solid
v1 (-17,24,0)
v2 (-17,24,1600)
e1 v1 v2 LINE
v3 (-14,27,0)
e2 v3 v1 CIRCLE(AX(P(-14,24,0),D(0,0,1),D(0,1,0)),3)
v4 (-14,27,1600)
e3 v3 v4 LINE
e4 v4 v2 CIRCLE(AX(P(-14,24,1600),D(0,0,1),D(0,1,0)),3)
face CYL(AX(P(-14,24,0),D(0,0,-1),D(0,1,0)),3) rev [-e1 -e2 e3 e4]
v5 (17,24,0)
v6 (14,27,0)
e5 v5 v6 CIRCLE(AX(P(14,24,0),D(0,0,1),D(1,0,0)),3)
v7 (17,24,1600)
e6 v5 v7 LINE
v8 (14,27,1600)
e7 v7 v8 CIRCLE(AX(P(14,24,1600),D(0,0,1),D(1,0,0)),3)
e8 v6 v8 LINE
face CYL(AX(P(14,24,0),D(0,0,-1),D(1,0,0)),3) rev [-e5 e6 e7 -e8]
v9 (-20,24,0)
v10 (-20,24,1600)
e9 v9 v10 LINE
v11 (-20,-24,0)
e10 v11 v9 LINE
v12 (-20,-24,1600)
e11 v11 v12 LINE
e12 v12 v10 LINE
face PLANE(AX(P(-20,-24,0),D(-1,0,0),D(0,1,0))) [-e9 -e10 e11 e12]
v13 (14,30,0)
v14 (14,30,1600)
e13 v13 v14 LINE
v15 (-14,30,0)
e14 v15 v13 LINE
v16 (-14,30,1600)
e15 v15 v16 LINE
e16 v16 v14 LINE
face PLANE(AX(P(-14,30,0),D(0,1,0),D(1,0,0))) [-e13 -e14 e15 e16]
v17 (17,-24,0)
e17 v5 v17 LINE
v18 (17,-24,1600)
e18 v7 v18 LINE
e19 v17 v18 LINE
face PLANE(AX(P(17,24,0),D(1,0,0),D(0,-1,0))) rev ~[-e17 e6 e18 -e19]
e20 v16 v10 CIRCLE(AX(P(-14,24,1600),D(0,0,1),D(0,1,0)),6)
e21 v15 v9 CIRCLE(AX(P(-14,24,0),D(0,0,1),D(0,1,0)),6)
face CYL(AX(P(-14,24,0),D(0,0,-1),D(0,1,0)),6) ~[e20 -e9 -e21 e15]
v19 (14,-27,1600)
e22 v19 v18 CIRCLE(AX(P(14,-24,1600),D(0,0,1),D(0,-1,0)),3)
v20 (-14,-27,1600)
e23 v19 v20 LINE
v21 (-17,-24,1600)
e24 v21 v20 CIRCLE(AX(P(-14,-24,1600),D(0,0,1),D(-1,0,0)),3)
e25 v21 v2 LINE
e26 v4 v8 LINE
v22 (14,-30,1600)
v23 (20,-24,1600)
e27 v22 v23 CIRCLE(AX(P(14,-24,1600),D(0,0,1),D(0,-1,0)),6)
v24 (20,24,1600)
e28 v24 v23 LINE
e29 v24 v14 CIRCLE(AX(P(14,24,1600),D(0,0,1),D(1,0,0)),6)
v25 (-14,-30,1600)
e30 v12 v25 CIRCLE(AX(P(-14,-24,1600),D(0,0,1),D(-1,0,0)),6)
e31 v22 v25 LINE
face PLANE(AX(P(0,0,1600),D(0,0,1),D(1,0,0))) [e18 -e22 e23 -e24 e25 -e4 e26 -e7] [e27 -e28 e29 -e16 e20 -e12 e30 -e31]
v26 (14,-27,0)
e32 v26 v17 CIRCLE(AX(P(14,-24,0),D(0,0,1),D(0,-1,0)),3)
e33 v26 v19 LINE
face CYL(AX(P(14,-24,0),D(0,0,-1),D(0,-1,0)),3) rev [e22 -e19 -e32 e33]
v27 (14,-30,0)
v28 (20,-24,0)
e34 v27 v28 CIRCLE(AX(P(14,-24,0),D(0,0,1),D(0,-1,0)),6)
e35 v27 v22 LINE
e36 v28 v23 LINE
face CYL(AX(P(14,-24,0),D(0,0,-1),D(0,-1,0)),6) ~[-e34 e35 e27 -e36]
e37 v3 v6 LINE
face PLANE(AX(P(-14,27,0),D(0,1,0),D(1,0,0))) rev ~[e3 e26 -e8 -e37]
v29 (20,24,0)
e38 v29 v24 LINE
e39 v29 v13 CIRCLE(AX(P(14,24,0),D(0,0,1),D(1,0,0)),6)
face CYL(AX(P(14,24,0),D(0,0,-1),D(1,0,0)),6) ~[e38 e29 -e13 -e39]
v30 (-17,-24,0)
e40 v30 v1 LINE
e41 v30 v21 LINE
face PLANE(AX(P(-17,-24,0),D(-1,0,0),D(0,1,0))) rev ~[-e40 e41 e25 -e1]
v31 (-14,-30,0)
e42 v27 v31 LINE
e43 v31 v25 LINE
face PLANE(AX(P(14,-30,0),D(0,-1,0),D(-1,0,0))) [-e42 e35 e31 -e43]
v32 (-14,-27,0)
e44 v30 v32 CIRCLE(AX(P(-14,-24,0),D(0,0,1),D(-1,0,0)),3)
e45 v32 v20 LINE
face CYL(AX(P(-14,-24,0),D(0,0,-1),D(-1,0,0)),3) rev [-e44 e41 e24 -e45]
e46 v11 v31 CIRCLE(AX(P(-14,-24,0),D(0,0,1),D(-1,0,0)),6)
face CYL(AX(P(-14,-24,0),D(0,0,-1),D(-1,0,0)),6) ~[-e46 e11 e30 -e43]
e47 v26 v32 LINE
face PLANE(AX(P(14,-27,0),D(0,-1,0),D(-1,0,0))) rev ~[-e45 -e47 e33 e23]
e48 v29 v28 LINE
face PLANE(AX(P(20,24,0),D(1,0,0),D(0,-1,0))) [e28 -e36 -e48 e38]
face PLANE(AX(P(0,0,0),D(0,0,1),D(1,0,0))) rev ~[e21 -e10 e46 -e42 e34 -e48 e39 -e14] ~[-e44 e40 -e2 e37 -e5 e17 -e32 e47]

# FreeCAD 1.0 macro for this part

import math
import FreeCAD as App
import Part
import Sketcher
from FreeCAD import Vector
Q = App.Units.Quantity

doc = App.newDocument("Part")
body = doc.addObject("PartDesign::Body", "Body")

sketch1 = body.newObject("Sketcher::SketchObject", "Sketch")
sketch1.AttachmentSupport = (doc.getObject("XY_Plane"), [""])
sketch1.MapMode = "FlatFace"
sketch1.addGeometry(Part.LineSegment(Vector(-20, 24, 0), Vector(-20, -24, 0)), False)
sketch1.addGeometry(Part.ArcOfCircle(Part.Circle(Vector(-14, -24, 0), Vector(0, 0, 1), 6), math.radians(180), math.radians(270)), False)
sketch1.addGeometry(Part.LineSegment(Vector(-14, -30, 0), Vector(14, -30, 0)), False)
sketch1.addGeometry(Part.ArcOfCircle(Part.Circle(Vector(14, -24, 0), Vector(0, 0, 1), 6), math.radians(-90), math.radians(0)), False)
sketch1.addGeometry(Part.LineSegment(Vector(20, -24, 0), Vector(20, 24, 0)), False)
sketch1.addGeometry(Part.ArcOfCircle(Part.Circle(Vector(14, 24, 0), Vector(0, 0, 1), 6), math.radians(0), math.radians(90)), False)
sketch1.addGeometry(Part.LineSegment(Vector(14, 30, 0), Vector(-14, 30, 0)), False)
sketch1.addGeometry(Part.ArcOfCircle(Part.Circle(Vector(-14, 24, 0), Vector(0, 0, 1), 6), math.radians(90), math.radians(180)), False)
sketch1.addGeometry(Part.ArcOfCircle(Part.Circle(Vector(-14, 24, 0), Vector(0, 0, 1), 3), math.radians(90), math.radians(180)), False)
sketch1.addGeometry(Part.LineSegment(Vector(-14, 27, 0), Vector(14, 27, 0)), False)
sketch1.addGeometry(Part.ArcOfCircle(Part.Circle(Vector(14, 24, 0), Vector(0, 0, 1), 3), math.radians(0), math.radians(90)), False)
sketch1.addGeometry(Part.LineSegment(Vector(17, 24, 0), Vector(17, -24, 0)), False)
sketch1.addGeometry(Part.ArcOfCircle(Part.Circle(Vector(14, -24, 0), Vector(0, 0, 1), 3), math.radians(-90), math.radians(0)), False)
sketch1.addGeometry(Part.LineSegment(Vector(14, -27, 0), Vector(-14, -27, 0)), False)
sketch1.addGeometry(Part.ArcOfCircle(Part.Circle(Vector(-14, -24, 0), Vector(0, 0, 1), 3), math.radians(180), math.radians(270)), False)
sketch1.addGeometry(Part.LineSegment(Vector(-17, -24, 0), Vector(-17, 24, 0)), False)
sketch1.addConstraint(Sketcher.Constraint("Tangent", 0, 2, 1, 1))
sketch1.addConstraint(Sketcher.Constraint("Tangent", 1, 2, 2, 1))
sketch1.addConstraint(Sketcher.Constraint("Tangent", 2, 2, 3, 1))
sketch1.addConstraint(Sketcher.Constraint("Tangent", 3, 2, 4, 1))
sketch1.addConstraint(Sketcher.Constraint("Tangent", 4, 2, 5, 1))
sketch1.addConstraint(Sketcher.Constraint("Tangent", 5, 2, 6, 1))
sketch1.addConstraint(Sketcher.Constraint("Tangent", 6, 2, 7, 1))
sketch1.addConstraint(Sketcher.Constraint("Tangent", 7, 2, 0, 1))
sketch1.addConstraint(Sketcher.Constraint("Tangent", 8, 1, 9, 1))
sketch1.addConstraint(Sketcher.Constraint("Tangent", 9, 2, 10, 2))
sketch1.addConstraint(Sketcher.Constraint("Tangent", 10, 1, 11, 1))
sketch1.addConstraint(Sketcher.Constraint("Tangent", 11, 2, 12, 2))
sketch1.addConstraint(Sketcher.Constraint("Tangent", 12, 1, 13, 1))
sketch1.addConstraint(Sketcher.Constraint("Tangent", 13, 2, 14, 2))
sketch1.addConstraint(Sketcher.Constraint("Tangent", 14, 1, 15, 1))
sketch1.addConstraint(Sketcher.Constraint("Tangent", 15, 2, 8, 2))
sketch1.addConstraint(Sketcher.Constraint("Vertical", 0))
sketch1.addConstraint(Sketcher.Constraint("Horizontal", 2))
sketch1.addConstraint(Sketcher.Constraint("Vertical", 4))
sketch1.addConstraint(Sketcher.Constraint("Horizontal", 6))
sketch1.addConstraint(Sketcher.Constraint("Horizontal", 9))
sketch1.addConstraint(Sketcher.Constraint("Vertical", 11))
sketch1.addConstraint(Sketcher.Constraint("Horizontal", 13))
sketch1.addConstraint(Sketcher.Constraint("Vertical", 15))
sketch1.addConstraint(Sketcher.Constraint("Coincident", 8, 3, 7, 3))
sketch1.addConstraint(Sketcher.Constraint("Coincident", 10, 3, 5, 3))
sketch1.addConstraint(Sketcher.Constraint("Coincident", 12, 3, 3, 3))
sketch1.addConstraint(Sketcher.Constraint("Equal", 1, 3))
sketch1.addConstraint(Sketcher.Constraint("Equal", 3, 5))
sketch1.addConstraint(Sketcher.Constraint("Equal", 5, 7))
sketch1.addConstraint(Sketcher.Constraint("Equal", 12, 14))
sketch1.addConstraint(Sketcher.Constraint("Symmetric", 1, 3, 5, 3, -1, 1))
sketch1.addConstraint(Sketcher.Constraint("Radius", 1, Q("6 mm")))
sketch1.addConstraint(Sketcher.Constraint("Radius", 8, Q("3 mm")))
sketch1.addConstraint(Sketcher.Constraint("DistanceX", 0, 2, -1, 1, Q("20 mm")))
sketch1.addConstraint(Sketcher.Constraint("DistanceY", 1, 2, -1, 1, Q("30 mm")))
pad1 = body.newObject("PartDesign::Pad", "Pad")
pad1.Profile = sketch1
pad1.Length = 1600

doc.recompute()
